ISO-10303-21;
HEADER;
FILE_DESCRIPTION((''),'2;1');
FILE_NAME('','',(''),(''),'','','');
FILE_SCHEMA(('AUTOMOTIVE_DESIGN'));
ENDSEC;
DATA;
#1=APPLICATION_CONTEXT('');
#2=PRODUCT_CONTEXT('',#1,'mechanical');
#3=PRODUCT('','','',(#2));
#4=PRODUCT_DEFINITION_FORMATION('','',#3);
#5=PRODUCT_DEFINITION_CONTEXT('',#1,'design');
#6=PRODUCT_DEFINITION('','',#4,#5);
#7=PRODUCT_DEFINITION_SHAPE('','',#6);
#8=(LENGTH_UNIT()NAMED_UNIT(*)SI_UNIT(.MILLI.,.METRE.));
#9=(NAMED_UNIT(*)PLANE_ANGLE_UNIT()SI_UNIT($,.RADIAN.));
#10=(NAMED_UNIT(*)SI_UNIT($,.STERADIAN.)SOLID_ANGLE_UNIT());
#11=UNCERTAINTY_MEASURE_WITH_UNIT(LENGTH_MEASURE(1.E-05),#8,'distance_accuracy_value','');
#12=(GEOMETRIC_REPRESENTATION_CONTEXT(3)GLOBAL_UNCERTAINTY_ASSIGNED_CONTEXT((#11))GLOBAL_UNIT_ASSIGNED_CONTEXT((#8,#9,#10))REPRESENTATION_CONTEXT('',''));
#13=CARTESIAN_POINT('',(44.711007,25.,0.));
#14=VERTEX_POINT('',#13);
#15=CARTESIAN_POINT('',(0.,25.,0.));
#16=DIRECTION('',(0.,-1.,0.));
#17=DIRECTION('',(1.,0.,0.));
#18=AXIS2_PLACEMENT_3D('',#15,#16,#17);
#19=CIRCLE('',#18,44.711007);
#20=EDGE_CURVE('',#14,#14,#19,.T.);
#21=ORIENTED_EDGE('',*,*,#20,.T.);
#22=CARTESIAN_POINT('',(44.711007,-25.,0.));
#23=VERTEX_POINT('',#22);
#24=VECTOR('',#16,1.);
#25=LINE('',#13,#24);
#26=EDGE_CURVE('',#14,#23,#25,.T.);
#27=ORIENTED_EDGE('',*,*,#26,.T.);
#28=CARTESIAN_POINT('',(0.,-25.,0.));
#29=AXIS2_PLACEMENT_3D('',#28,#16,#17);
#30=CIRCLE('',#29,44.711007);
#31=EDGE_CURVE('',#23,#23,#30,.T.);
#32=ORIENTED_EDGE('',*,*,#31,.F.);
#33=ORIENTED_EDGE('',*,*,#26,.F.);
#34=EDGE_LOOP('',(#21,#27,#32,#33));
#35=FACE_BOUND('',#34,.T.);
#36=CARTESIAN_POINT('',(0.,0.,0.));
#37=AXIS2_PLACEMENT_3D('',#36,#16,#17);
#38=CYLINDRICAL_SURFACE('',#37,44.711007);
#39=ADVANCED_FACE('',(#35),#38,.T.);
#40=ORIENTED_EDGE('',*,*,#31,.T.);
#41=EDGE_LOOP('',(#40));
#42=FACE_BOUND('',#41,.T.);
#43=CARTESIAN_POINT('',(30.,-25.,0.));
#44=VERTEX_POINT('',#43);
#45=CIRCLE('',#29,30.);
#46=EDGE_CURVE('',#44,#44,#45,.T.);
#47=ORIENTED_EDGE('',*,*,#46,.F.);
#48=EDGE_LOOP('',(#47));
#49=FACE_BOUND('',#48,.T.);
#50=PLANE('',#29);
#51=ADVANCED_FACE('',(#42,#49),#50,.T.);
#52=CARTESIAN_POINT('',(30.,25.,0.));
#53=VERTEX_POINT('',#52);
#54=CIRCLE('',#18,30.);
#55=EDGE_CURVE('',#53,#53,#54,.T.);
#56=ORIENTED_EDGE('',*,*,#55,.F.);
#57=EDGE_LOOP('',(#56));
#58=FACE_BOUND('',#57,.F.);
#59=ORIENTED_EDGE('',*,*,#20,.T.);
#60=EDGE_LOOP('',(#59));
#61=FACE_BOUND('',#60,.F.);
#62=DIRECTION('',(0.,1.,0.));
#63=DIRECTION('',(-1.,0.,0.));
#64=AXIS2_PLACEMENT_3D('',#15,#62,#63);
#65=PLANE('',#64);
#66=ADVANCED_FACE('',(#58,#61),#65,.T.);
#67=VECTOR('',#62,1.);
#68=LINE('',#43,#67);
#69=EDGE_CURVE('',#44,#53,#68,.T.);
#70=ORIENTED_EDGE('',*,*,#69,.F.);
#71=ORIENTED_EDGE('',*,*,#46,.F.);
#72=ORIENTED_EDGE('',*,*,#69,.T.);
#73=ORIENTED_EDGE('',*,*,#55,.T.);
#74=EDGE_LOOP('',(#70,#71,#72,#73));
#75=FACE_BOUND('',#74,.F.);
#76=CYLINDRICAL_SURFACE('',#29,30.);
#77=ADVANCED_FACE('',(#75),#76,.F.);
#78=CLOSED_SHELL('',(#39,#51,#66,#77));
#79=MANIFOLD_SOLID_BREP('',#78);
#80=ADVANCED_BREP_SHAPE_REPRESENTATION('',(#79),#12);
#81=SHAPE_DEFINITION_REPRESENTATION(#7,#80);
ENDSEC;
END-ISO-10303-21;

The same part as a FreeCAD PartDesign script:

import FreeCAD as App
import Part
import Sketcher
from FreeCAD import Vector
Q = App.Units.Quantity

doc = App.newDocument("Part")
body = doc.addObject("PartDesign::Body", "Body")

# Sketch on XZ plane
sketch1 = body.newObject("Sketcher::SketchObject", "Sketch")
sketch1.AttachmentSupport = (doc.getObject("XZ_Plane"), [""])
sketch1.MapMode = "FlatFace"
sketch1.addGeometry(Part.Circle(Vector(0, 0, 0), Vector(0, 0, 1), 45), False)
sketch1.addConstraint([
    Sketcher.Constraint("Coincident", 0, 3, -1, 1),
    Sketcher.Constraint("Diameter", 0, Q("89.422014 mm")),
])
pad1 = body.newObject("PartDesign::Pad", "Pad")
pad1.Profile = sketch1
pad1.Length = 25
body2 = doc.addObject("PartDesign::Body", "Body001")
doc.recompute()

body2.BaseFeature = body
doc.recompute()

mirroring = doc.addObject("Part::Mirroring", "Mirroring")
mirroring.Source = body
mirroring.Base = Vector(0, 0, 0)
mirroring.Normal = Vector(0, 1, 0)
body3 = doc.addObject("PartDesign::Body", "Body002")
body3.BaseFeature = mirroring
boolean = body2.newObject("PartDesign::Boolean", "Boolean")
boolean.Type = "Fuse"
boolean.addObjects([body3])
doc.recompute()

# Sketch on XZ plane
sketch2 = body2.newObject("Sketcher::SketchObject", "Sketch001")
sketch2.AttachmentSupport = (doc.getObject("XZ_Plane001"), [""])
sketch2.MapMode = "FlatFace"
sketch2.AttachmentOffset = App.Placement(Vector(0, 0, 25), App.Rotation())
sketch2.addGeometry(Part.Circle(Vector(0, 0, 0), Vector(0, 0, 1), 30), False)
sketch2.addConstraint([
    Sketcher.Constraint("Coincident", 0, 3, -1, 1),
    Sketcher.Constraint("Diameter", 0, Q("60 mm")),
])
pocket1 = body2.newObject("PartDesign::Pocket", "Pocket")
pocket1.Profile = sketch2
pocket1.Length = 50
mirroring.Visibility = False

doc.recompute()
